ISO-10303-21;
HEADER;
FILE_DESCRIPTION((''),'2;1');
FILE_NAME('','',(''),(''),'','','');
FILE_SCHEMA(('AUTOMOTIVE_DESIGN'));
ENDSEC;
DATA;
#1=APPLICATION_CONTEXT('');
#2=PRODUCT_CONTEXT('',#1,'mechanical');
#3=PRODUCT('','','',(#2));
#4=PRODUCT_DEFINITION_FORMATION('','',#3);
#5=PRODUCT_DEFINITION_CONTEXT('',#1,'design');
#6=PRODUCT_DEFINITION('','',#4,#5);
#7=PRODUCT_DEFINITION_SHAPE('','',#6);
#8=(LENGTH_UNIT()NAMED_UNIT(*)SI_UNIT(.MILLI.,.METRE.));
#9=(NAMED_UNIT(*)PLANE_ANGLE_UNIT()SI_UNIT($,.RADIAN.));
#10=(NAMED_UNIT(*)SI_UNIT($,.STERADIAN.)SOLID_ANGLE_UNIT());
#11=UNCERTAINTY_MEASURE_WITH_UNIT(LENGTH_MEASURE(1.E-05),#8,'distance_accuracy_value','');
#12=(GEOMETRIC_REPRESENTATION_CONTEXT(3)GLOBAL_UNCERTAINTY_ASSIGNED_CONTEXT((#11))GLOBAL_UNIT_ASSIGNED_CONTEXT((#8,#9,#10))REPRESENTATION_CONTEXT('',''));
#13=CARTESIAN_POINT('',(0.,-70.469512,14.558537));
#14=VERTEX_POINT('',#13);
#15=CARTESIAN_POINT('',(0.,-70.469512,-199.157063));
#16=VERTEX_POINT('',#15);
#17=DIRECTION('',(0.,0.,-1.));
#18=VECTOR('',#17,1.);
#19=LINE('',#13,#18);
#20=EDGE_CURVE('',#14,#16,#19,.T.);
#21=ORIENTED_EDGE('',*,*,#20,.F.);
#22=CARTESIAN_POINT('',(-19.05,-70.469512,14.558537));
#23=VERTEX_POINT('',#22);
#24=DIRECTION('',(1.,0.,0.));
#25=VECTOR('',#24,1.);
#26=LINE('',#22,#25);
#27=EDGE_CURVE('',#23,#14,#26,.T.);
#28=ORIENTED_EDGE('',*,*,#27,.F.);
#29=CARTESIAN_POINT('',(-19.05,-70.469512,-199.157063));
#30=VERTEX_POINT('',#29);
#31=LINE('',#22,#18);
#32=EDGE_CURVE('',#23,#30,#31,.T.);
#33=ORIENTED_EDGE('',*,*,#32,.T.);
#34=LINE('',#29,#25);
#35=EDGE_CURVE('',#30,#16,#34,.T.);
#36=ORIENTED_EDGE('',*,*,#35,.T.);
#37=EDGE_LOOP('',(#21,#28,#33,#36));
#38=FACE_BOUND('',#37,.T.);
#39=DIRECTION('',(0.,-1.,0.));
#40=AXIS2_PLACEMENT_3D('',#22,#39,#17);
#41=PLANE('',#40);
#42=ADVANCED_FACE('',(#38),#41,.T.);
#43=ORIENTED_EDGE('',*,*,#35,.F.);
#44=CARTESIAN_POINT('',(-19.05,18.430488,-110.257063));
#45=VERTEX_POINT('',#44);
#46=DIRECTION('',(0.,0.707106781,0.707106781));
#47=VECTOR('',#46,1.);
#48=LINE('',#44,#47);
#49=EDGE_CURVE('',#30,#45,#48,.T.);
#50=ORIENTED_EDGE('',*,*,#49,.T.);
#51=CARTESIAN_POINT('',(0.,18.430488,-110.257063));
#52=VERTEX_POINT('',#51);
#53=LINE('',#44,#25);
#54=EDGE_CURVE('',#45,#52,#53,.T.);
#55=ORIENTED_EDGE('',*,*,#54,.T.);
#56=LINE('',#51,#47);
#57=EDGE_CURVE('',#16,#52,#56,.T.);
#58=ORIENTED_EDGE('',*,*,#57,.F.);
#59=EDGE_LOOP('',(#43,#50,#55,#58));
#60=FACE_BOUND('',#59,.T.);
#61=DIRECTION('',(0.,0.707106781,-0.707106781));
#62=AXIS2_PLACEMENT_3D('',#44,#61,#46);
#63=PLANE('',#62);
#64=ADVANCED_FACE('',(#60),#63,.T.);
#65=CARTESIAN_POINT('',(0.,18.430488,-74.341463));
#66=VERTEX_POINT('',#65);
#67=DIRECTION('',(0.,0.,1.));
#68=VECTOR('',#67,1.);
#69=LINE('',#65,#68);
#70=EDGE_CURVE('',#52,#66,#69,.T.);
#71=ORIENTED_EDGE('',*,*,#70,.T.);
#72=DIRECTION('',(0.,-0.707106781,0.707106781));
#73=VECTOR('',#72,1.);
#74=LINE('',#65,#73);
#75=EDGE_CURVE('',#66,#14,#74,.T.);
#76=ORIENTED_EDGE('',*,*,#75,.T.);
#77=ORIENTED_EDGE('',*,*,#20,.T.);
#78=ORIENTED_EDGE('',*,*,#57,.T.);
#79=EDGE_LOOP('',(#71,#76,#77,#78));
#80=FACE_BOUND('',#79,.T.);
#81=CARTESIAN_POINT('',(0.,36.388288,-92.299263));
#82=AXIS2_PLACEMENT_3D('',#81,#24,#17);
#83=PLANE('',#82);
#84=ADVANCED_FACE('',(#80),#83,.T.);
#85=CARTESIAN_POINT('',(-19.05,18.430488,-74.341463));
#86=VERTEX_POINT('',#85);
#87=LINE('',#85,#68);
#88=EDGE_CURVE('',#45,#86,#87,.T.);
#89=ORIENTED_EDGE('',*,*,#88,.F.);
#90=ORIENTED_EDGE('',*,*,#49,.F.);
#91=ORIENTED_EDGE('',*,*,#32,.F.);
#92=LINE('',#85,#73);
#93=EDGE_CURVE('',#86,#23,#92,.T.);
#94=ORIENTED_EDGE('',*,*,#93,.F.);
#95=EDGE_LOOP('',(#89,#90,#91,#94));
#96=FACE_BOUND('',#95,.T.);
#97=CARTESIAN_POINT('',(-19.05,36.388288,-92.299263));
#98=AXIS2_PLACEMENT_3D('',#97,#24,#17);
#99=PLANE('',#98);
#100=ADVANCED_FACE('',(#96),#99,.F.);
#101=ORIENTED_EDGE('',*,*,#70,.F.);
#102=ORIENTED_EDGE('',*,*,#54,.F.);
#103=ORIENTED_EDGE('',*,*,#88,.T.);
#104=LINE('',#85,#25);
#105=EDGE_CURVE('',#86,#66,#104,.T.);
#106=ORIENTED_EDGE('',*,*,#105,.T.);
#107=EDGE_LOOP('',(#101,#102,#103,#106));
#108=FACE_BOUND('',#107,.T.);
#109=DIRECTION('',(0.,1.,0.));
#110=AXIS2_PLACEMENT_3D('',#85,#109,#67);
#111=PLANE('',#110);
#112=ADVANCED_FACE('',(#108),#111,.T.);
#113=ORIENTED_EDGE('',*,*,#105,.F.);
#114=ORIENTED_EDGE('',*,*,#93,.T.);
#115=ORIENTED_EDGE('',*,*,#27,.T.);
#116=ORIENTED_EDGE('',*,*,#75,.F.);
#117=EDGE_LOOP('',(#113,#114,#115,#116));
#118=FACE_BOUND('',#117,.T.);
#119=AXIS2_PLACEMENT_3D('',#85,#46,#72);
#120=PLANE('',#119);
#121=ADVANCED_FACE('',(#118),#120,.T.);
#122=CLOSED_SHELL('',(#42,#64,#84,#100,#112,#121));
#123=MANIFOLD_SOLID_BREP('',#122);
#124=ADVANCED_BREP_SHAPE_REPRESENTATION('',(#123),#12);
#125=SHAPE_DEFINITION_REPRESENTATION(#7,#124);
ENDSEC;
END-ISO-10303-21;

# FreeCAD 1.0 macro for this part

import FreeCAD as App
import Part
import Sketcher

V = App.Vector
Q = App.Units.Quantity

doc = App.newDocument("Part")
body = doc.addObject("PartDesign::Body", "Body")

# Sketch on YZ plane
sketch1 = body.newObject("Sketcher::SketchObject", "Sketch")
sketch1.AttachmentSupport = (doc.getObject("YZ_Plane"), [""])
sketch1.MapMode = "FlatFace"
sketch1.addGeometry([
    Part.LineSegment(V(18.430488, -110.257063, 0), V(18.430488, -74.341463, 0)),
    Part.LineSegment(V(18.430488, -74.341463, 0), V(-70.469512, 14.558537, 0)),
    Part.LineSegment(V(-70.469512, 14.558537, 0), V(-70.469512, -199.157063, 0)),
    Part.LineSegment(V(-70.469512, -199.157063, 0), V(18.430488, -110.257063, 0)),
], False)
sketch1.addConstraint([
    Sketcher.Constraint("Coincident", 0, 2, 1, 1),
    Sketcher.Constraint("Coincident", 1, 2, 2, 1),
    Sketcher.Constraint("Coincident", 2, 2, 3, 1),
    Sketcher.Constraint("Coincident", 3, 2, 0, 1),
    Sketcher.Constraint("Vertical", 0),
    Sketcher.Constraint("Vertical", 2),
    Sketcher.Constraint("Perpendicular", 1, 3),
    Sketcher.Constraint("Equal", 1, 3),
    Sketcher.Constraint("DistanceX", 1, 2, 0, 2, Q("3.5 in")),
    Sketcher.Constraint("DistanceY", 0, 1, 0, 2, Q("1.414 in")),
    Sketcher.Constraint("DistanceX", -1, 1, 0, 2, Q("18.430488 mm")),
    Sketcher.Constraint("DistanceY", 0, 2, -1, 1, Q("74.341463 mm")),
])
pad1 = body.newObject("PartDesign::Pad", "Pad")
pad1.Profile = sketch1
pad1.Length = Q("0.75 in")
pad1.Reversed = True

doc.recompute()
